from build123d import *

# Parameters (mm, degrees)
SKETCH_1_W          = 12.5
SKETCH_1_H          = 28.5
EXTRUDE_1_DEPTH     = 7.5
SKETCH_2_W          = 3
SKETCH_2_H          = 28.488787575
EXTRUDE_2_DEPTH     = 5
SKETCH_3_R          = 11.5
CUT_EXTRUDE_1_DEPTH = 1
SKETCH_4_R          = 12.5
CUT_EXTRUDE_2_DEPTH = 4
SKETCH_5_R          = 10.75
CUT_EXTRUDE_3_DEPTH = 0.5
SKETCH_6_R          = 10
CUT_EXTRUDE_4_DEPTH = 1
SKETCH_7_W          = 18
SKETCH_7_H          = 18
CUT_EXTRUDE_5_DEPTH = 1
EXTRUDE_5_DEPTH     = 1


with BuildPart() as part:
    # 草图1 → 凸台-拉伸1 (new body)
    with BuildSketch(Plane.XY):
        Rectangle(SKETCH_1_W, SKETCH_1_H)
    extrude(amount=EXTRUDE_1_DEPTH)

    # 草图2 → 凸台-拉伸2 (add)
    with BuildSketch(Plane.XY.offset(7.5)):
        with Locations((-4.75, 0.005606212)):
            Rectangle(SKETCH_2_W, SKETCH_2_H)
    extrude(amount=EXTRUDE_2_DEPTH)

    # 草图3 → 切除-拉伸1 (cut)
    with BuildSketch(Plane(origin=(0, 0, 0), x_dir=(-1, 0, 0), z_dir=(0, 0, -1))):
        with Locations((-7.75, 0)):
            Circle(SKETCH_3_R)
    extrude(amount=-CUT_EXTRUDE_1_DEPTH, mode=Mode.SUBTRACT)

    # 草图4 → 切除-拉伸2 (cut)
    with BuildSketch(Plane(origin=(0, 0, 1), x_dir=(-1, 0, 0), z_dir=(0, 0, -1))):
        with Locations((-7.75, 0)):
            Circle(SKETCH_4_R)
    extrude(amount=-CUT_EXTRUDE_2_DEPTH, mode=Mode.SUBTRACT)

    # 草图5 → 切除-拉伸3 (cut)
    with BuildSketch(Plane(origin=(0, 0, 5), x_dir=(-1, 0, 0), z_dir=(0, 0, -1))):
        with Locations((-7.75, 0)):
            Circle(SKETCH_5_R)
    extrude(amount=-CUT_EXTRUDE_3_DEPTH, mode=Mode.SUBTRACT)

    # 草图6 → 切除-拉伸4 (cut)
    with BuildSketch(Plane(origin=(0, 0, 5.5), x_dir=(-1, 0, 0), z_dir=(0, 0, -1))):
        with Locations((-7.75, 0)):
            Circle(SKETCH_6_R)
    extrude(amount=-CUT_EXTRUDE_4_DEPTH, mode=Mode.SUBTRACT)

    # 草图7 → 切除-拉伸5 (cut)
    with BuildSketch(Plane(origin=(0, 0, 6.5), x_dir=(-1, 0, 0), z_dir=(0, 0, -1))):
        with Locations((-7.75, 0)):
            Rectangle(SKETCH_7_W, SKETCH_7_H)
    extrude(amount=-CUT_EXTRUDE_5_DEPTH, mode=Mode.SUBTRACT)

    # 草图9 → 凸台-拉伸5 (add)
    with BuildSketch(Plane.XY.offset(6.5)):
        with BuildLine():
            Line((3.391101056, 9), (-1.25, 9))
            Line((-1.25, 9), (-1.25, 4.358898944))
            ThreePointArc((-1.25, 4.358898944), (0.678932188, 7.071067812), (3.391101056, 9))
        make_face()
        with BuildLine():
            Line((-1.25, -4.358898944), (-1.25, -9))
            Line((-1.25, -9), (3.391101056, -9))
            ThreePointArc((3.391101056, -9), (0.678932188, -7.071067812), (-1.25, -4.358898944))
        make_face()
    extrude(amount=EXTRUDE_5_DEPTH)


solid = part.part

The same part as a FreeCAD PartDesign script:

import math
import FreeCAD as App
import Part
import Sketcher
from FreeCAD import Vector
Q = App.Units.Quantity


def add_polygon(sketch, points):
    """Adds a closed chain of lines whose ends are joined by coincident constraints."""
    first, n = sketch.GeometryCount, len(points)
    for a, b in zip(points, points[1:] + points[:1]):
        sketch.addGeometry(Part.LineSegment(App.Vector(*a, 0), App.Vector(*b, 0)), False)
    for i in range(n):
        sketch.addConstraint(Sketcher.Constraint("Coincident", first + i, 2, first + (i + 1) % n, 1))

doc = App.newDocument("Part")
body = doc.addObject("PartDesign::Body", "Body")

# Sketch on XY plane
sketch1 = body.newObject("Sketcher::SketchObject", "Sketch")
sketch1.AttachmentSupport = (doc.getObject("XY_Plane"), [""])
sketch1.MapMode = "FlatFace"
add_polygon(sketch1, [(-6, 14), (-6, -14), (6, -14), (6, 14)])  # lines 0-3
sketch1.addConstraint([
    Sketcher.Constraint("Vertical", 0),
    Sketcher.Constraint("Horizontal", 1),
    Sketcher.Constraint("Vertical", 2),
    Sketcher.Constraint("Horizontal", 3),
    Sketcher.Constraint("Symmetric", 0, 2, 2, 2, -1, 1),
    Sketcher.Constraint("DistanceX", 1, 1, 1, 2, Q("12.5 mm")),
    Sketcher.Constraint("DistanceY", 0, 2, 0, 1, Q("28.5 mm")),
])
pad1 = body.newObject("PartDesign::Pad", "Pad")
pad1.Profile = sketch1
pad1.Length = 7.5

# Sketch on XY plane
sketch2 = body.newObject("Sketcher::SketchObject", "Sketch001")
sketch2.AttachmentSupport = (doc.getObject("XY_Plane"), [""])
sketch2.MapMode = "FlatFace"
sketch2.AttachmentOffset = App.Placement(Vector(0, 0, 7.5), App.Rotation())
add_polygon(sketch2, [(-6.2, 14.2), (-6.2, -14.2), (-3.2, -14.2), (-3.2, 14.2)])  # lines 0-3
sketch2.addConstraint([
    Sketcher.Constraint("Vertical", 0),
    Sketcher.Constraint("Horizontal", 1),
    Sketcher.Constraint("Vertical", 2),
    Sketcher.Constraint("Horizontal", 3),
    Sketcher.Constraint("DistanceX", 1, 1, 1, 2, Q("3 mm")),
    Sketcher.Constraint("DistanceX", 0, 2, -1, 1, Q("6.25 mm")),
    Sketcher.Constraint("DistanceY", -1, 1, 2, 2, Q("14.25 mm")),
    Sketcher.Constraint("DistanceY", 0, 2, 0, 1, Q("28.488788 mm")),
])
pad2 = body.newObject("PartDesign::Pad", "Pad001")
pad2.Profile = sketch2
pad2.Length = 5

# Sketch on XY plane
sketch3 = body.newObject("Sketcher::SketchObject", "Sketch002")
sketch3.AttachmentSupport = (doc.getObject("XY_Plane"), [""])
sketch3.MapMode = "FlatFace"
sketch3.addGeometry(Part.Circle(Vector(8, 0, 0), Vector(0, 0, 1), 12), False)
sketch3.addConstraint([
    Sketcher.Constraint("PointOnObject", 0, 3, -1),
    Sketcher.Constraint("Diameter", 0, Q("23 mm")),
    Sketcher.Constraint("DistanceX", -1, 1, 0, 3, Q("7.75 mm")),
])
pocket1 = body.newObject("PartDesign::Pocket", "Pocket")
pocket1.Profile = sketch3
pocket1.Length = 1
pocket1.Reversed = True

# Sketch on XY plane
sketch4 = body.newObject("Sketcher::SketchObject", "Sketch003")
sketch4.AttachmentSupport = (doc.getObject("XY_Plane"), [""])
sketch4.MapMode = "FlatFace"
sketch4.AttachmentOffset = App.Placement(Vector(0, 0, 1), App.Rotation())
sketch4.addGeometry(Part.Circle(Vector(8, 0, 0), Vector(0, 0, 1), 12), False)
sketch4.addConstraint([
    Sketcher.Constraint("PointOnObject", 0, 3, -1),
    Sketcher.Constraint("Diameter", 0, Q("25 mm")),
    Sketcher.Constraint("DistanceX", -1, 1, 0, 3, Q("7.75 mm")),
])
pocket2 = body.newObject("PartDesign::Pocket", "Pocket001")
pocket2.Profile = sketch4
pocket2.Length = 4
pocket2.Reversed = True

# Sketch on XY plane
sketch5 = body.newObject("Sketcher::SketchObject", "Sketch004")
sketch5.AttachmentSupport = (doc.getObject("XY_Plane"), [""])
sketch5.MapMode = "FlatFace"
sketch5.AttachmentOffset = App.Placement(Vector(0, 0, 5), App.Rotation())
sketch5.addGeometry(Part.Circle(Vector(8, 0, 0), Vector(0, 0, 1), 11), False)
sketch5.addConstraint([
    Sketcher.Constraint("PointOnObject", 0, 3, -1),
    Sketcher.Constraint("Diameter", 0, Q("21.5 mm")),
    Sketcher.Constraint("DistanceX", -1, 1, 0, 3, Q("7.75 mm")),
])
pocket3 = body.newObject("PartDesign::Pocket", "Pocket002")
pocket3.Profile = sketch5
pocket3.Length = 0.5
pocket3.Reversed = True

# Sketch on XY plane
sketch6 = body.newObject("Sketcher::SketchObject", "Sketch005")
sketch6.AttachmentSupport = (doc.getObject("XY_Plane"), [""])
sketch6.MapMode = "FlatFace"
sketch6.AttachmentOffset = App.Placement(Vector(0, 0, 5.5), App.Rotation())
sketch6.addGeometry(Part.Circle(Vector(8, 0, 0), Vector(0, 0, 1), 10), False)
sketch6.addConstraint([
    Sketcher.Constraint("PointOnObject", 0, 3, -1),
    Sketcher.Constraint("Diameter", 0, Q("20 mm")),
    Sketcher.Constraint("DistanceX", -1, 1, 0, 3, Q("7.75 mm")),
])
pocket4 = body.newObject("PartDesign::Pocket", "Pocket003")
pocket4.Profile = sketch6
pocket4.Length = 1
pocket4.Reversed = True

# Sketch on XY plane
sketch7 = body.newObject("Sketcher::SketchObject", "Sketch006")
sketch7.AttachmentSupport = (doc.getObject("XY_Plane"), [""])
sketch7.MapMode = "FlatFace"
sketch7.AttachmentOffset = App.Placement(Vector(0, 0, 6.5), App.Rotation())
add_polygon(sketch7, [(17, 9), (17, -9), (-1, -9), (-1, 9)])  # lines 0-3
sketch7.addConstraint([
    Sketcher.Constraint("Vertical", 0),
    Sketcher.Constraint("Horizontal", 1),
    Sketcher.Constraint("Vertical", 2),
    Sketcher.Constraint("Horizontal", 3),
    Sketcher.Constraint("Equal", 3, 0),
    Sketcher.Constraint("DistanceX", 1, 2, 1, 1, Q("18 mm")),
    Sketcher.Constraint("DistanceY", 0, 2, -1, 1, Q("9 mm")),
    Sketcher.Constraint("DistanceX", -1, 1, 0, 2, Q("16.75 mm")),
])
pocket5 = body.newObject("PartDesign::Pocket", "Pocket004")
pocket5.Profile = sketch7
pocket5.Length = 1
pocket5.Reversed = True

# Sketch on XY plane
sketch8 = body.newObject("Sketcher::SketchObject", "Sketch007")
sketch8.AttachmentSupport = (doc.getObject("XY_Plane"), [""])
sketch8.MapMode = "FlatFace"
sketch8.AttachmentOffset = App.Placement(Vector(0, 0, 6.5), App.Rotation())
sketch8.addGeometry([
    Part.LineSegment(Vector(3.4, 9, 0), Vector(-1.2, 9, 0)),  # 0
    Part.LineSegment(Vector(-1.2, 9, 0), Vector(-1.2, 4.4, 0)),  # 1
    Part.ArcOfCircle(Part.Circle(Vector(7.8, 0, 0), Vector(0, 0, 1), 10), math.radians(116), math.radians(154)),  # 2
    Part.LineSegment(Vector(-1.2, -4.4, 0), Vector(-1.2, -9, 0)),  # 3
    Part.LineSegment(Vector(-1.2, -9, 0), Vector(3.4, -9, 0)),  # 4
    Part.ArcOfCircle(Part.Circle(Vector(7.8, 0, 0), Vector(0, 0, 1), 10), math.radians(-154), math.radians(-116)),  # 5
], False)
sketch8.addConstraint([
    Sketcher.Constraint("Coincident", 0, 2, 1, 1),
    Sketcher.Constraint("Coincident", 1, 2, 2, 2),
    Sketcher.Constraint("Coincident", 2, 1, 0, 1),
    Sketcher.Constraint("Coincident", 3, 2, 4, 1),
    Sketcher.Constraint("Coincident", 4, 2, 5, 2),
    Sketcher.Constraint("Coincident", 5, 1, 3, 1),
    Sketcher.Constraint("Horizontal", 0),
    Sketcher.Constraint("Vertical", 1),
    Sketcher.Constraint("Vertical", 3),
    Sketcher.Constraint("Horizontal", 4),
    Sketcher.Constraint("Coincident", 5, 3, 2, 3),
    Sketcher.Constraint("Equal", 2, 5),
    Sketcher.Constraint("Symmetric", 0, 2, 3, 2, -1),
    Sketcher.Constraint("PointOnObject", 2, 3, -1),
    Sketcher.Constraint("Equal", 4, 1),
    Sketcher.Constraint("Radius", 2, Q("10 mm")),
    Sketcher.Constraint("DistanceY", -1, 1, 0, 2, Q("9 mm")),
    Sketcher.Constraint("DistanceX", -1, 1, 2, 3, Q("7.75 mm")),
])
pad3 = body.newObject("PartDesign::Pad", "Pad002")
pad3.Profile = sketch8
pad3.Length = 1

doc.recompute()
